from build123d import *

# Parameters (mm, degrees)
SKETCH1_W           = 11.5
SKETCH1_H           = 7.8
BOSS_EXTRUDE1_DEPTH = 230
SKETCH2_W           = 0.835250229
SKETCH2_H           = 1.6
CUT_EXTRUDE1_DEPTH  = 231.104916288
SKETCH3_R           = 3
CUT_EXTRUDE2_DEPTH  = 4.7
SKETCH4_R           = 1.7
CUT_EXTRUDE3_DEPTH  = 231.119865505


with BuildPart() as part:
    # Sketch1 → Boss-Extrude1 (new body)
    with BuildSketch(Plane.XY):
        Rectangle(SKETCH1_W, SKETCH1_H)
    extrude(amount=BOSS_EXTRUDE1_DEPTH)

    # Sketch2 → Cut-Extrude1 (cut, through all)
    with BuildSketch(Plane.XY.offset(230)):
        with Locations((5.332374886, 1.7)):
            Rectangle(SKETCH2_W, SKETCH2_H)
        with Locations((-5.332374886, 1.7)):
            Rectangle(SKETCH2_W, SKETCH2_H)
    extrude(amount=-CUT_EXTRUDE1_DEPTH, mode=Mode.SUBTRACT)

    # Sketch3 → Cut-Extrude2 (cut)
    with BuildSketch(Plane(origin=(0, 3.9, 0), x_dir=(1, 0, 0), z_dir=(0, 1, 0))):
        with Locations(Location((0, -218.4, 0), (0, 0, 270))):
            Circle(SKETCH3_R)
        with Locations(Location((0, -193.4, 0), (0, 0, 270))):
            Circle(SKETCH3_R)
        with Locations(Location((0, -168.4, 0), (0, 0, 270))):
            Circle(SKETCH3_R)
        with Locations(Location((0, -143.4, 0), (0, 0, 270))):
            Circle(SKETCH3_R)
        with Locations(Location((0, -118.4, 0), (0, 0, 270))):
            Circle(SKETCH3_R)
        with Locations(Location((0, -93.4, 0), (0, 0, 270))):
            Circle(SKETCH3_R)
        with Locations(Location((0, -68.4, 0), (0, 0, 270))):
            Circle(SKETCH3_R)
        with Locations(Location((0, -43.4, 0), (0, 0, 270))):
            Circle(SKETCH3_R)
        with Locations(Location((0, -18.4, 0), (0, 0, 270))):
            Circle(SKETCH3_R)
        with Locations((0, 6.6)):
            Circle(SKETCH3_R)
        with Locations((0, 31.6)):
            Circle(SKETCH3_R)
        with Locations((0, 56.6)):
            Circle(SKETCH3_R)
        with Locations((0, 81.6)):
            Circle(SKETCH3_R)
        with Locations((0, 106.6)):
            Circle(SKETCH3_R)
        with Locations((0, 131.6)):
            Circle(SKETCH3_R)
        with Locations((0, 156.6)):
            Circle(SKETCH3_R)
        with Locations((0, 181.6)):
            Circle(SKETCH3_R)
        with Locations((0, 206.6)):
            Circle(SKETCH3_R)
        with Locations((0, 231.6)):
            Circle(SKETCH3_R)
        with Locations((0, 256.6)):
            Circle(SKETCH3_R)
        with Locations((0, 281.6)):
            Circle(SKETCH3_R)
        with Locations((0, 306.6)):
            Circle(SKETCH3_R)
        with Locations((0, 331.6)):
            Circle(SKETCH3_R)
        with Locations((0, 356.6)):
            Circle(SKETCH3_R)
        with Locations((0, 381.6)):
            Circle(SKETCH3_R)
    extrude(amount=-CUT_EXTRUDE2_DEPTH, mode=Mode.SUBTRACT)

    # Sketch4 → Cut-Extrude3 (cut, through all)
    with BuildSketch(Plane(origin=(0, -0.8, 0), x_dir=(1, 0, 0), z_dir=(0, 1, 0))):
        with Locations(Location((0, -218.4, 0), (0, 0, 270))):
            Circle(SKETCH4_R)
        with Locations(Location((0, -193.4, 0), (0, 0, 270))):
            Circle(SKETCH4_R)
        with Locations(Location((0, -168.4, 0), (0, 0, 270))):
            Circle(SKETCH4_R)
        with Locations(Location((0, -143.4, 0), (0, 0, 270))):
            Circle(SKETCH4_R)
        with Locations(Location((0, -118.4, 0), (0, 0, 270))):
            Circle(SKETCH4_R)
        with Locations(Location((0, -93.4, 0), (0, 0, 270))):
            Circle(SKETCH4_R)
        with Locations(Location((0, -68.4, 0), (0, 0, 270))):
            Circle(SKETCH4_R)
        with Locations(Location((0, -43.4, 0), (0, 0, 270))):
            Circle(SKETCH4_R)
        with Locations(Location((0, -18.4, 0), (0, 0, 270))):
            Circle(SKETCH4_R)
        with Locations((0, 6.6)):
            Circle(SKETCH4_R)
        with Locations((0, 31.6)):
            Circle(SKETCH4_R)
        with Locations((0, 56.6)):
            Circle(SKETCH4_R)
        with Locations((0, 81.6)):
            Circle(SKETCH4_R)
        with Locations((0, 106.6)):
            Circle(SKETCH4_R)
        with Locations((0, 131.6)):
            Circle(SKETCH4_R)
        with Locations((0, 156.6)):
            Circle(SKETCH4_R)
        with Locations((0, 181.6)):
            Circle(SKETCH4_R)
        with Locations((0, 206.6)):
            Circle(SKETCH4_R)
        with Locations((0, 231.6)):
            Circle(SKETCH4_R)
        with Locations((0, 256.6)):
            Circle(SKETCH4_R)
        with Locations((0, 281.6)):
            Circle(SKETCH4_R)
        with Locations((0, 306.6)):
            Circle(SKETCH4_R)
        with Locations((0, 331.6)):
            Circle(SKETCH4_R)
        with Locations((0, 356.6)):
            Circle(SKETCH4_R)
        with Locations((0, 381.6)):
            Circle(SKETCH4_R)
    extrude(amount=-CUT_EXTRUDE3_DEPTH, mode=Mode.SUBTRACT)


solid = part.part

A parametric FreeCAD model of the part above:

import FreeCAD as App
import Part
import Sketcher

doc = App.newDocument("Part")
body = doc.addObject("PartDesign::Body", "Body")

# Sketch on XY plane
sketch1 = doc.addObject("Sketcher::SketchObject", "Sketch")
body.addObject(sketch1)
sketch1.AttachmentSupport = (doc.XY_Plane, [""])
sketch1.MapMode = "FlatFace"
sketch1.addGeometry(Part.LineSegment(App.Vector(-5.75, 3.9, 0), App.Vector(-5.75, -3.9, 0)), False)
sketch1.addGeometry(Part.LineSegment(App.Vector(-5.75, -3.9, 0), App.Vector(5.75, -3.9, 0)), False)
sketch1.addGeometry(Part.LineSegment(App.Vector(5.75, -3.9, 0), App.Vector(5.75, 3.9, 0)), False)
sketch1.addGeometry(Part.LineSegment(App.Vector(5.75, 3.9, 0), App.Vector(-5.75, 3.9, 0)), False)
sketch1.addConstraint(Sketcher.Constraint("Coincident", 0, 2, 1, 1))
sketch1.addConstraint(Sketcher.Constraint("Coincident", 1, 2, 2, 1))
sketch1.addConstraint(Sketcher.Constraint("Coincident", 2, 2, 3, 1))
sketch1.addConstraint(Sketcher.Constraint("Coincident", 3, 2, 0, 1))
sketch1.addConstraint(Sketcher.Constraint("Vertical", 0))
sketch1.addConstraint(Sketcher.Constraint("Horizontal", 1))
sketch1.addConstraint(Sketcher.Constraint("Vertical", 2))
sketch1.addConstraint(Sketcher.Constraint("Horizontal", 3))
sketch1.addConstraint(Sketcher.Constraint("Symmetric", 0, 2, 2, 2, -1, 1))
sketch1.addConstraint(Sketcher.Constraint("DistanceX", 1, 1, 1, 2, 11.5))
sketch1.addConstraint(Sketcher.Constraint("DistanceY", 0, 2, 0, 1, 7.8))
pad1 = doc.addObject("PartDesign::Pad", "Pad")
body.addObject(pad1)
pad1.Profile = sketch1
pad1.Length = 230

# Sketch on XY plane
sketch2 = doc.addObject("Sketcher::SketchObject", "Sketch001")
body.addObject(sketch2)
sketch2.AttachmentSupport = (doc.XY_Plane, [""])
sketch2.MapMode = "FlatFace"
sketch2.AttachmentOffset = App.Placement(App.Vector(0, 0, 230), App.Rotation())
sketch2.addGeometry(Part.LineSegment(App.Vector(4.91475, 2.5, 0), App.Vector(4.91475, 0.9, 0)), False)
sketch2.addGeometry(Part.LineSegment(App.Vector(4.91475, 0.9, 0), App.Vector(5.75, 0.9, 0)), False)
sketch2.addGeometry(Part.LineSegment(App.Vector(5.75, 0.9, 0), App.Vector(5.75, 2.5, 0)), False)
sketch2.addGeometry(Part.LineSegment(App.Vector(5.75, 2.5, 0), App.Vector(4.91475, 2.5, 0)), False)
sketch2.addGeometry(Part.LineSegment(App.Vector(-5.75, 2.5, 0), App.Vector(-5.75, 0.9, 0)), False)
sketch2.addGeometry(Part.LineSegment(App.Vector(-5.75, 0.9, 0), App.Vector(-4.91475, 0.9, 0)), False)
sketch2.addGeometry(Part.LineSegment(App.Vector(-4.91475, 0.9, 0), App.Vector(-4.91475, 2.5, 0)), False)
sketch2.addGeometry(Part.LineSegment(App.Vector(-4.91475, 2.5, 0), App.Vector(-5.75, 2.5, 0)), False)
sketch2.addConstraint(Sketcher.Constraint("Coincident", 0, 2, 1, 1))
sketch2.addConstraint(Sketcher.Constraint("Coincident", 1, 2, 2, 1))
sketch2.addConstraint(Sketcher.Constraint("Coincident", 2, 2, 3, 1))
sketch2.addConstraint(Sketcher.Constraint("Coincident", 3, 2, 0, 1))
sketch2.addConstraint(Sketcher.Constraint("Coincident", 4, 2, 5, 1))
sketch2.addConstraint(Sketcher.Constraint("Coincident", 5, 2, 6, 1))
sketch2.addConstraint(Sketcher.Constraint("Coincident", 6, 2, 7, 1))
sketch2.addConstraint(Sketcher.Constraint("Coincident", 7, 2, 4, 1))
sketch2.addConstraint(Sketcher.Constraint("Vertical", 0))
sketch2.addConstraint(Sketcher.Constraint("Horizontal", 1))
sketch2.addConstraint(Sketcher.Constraint("Vertical", 2))
sketch2.addConstraint(Sketcher.Constraint("Horizontal", 3))
sketch2.addConstraint(Sketcher.Constraint("Vertical", 4))
sketch2.addConstraint(Sketcher.Constraint("Horizontal", 5))
sketch2.addConstraint(Sketcher.Constraint("Vertical", 6))
sketch2.addConstraint(Sketcher.Constraint("Horizontal", 7))
sketch2.addConstraint(Sketcher.Constraint("Symmetric", 1, 2, 4, 2, -2))
sketch2.addConstraint(Sketcher.Constraint("Symmetric", 3, 2, 6, 2, -2))
sketch2.addConstraint(Sketcher.Constraint("DistanceY", 0, 2, 0, 1, 1.6))
sketch2.addConstraint(Sketcher.Constraint("DistanceY", -1, 1, 0, 2, 0.9))
sketch2.addConstraint(Sketcher.Constraint("DistanceX", 4, 2, 1, 2, 11.5))
sketch2.addConstraint(Sketcher.Constraint("DistanceX", 1, 1, 1, 2, 0.83525))
pocket1 = doc.addObject("PartDesign::Pocket", "Pocket")
body.addObject(pocket1)
pocket1.Profile = sketch2
pocket1.Type = "ThroughAll"

# Sketch on XZ plane
sketch3 = doc.addObject("Sketcher::SketchObject", "Sketch002")
body.addObject(sketch3)
sketch3.AttachmentSupport = (doc.XZ_Plane, [""])
sketch3.MapMode = "FlatFace"
sketch3.AttachmentOffset = App.Placement(App.Vector(0, 0, -3.9), App.Rotation())
sketch3.addGeometry(Part.Circle(App.Vector(0, 218.4, 0), App.Vector(0, 0, 1), 3), False)
sketch3.addGeometry(Part.Circle(App.Vector(0, 193.4, 0), App.Vector(0, 0, 1), 3), False)
sketch3.addGeometry(Part.Circle(App.Vector(0, 168.4, 0), App.Vector(0, 0, 1), 3), False)
sketch3.addGeometry(Part.Circle(App.Vector(0, 143.4, 0), App.Vector(0, 0, 1), 3), False)
sketch3.addGeometry(Part.Circle(App.Vector(0, 118.4, 0), App.Vector(0, 0, 1), 3), False)
sketch3.addGeometry(Part.Circle(App.Vector(0, 93.4, 0), App.Vector(0, 0, 1), 3), False)
sketch3.addGeometry(Part.Circle(App.Vector(0, 68.4, 0), App.Vector(0, 0, 1), 3), False)
sketch3.addGeometry(Part.Circle(App.Vector(0, 43.4, 0), App.Vector(0, 0, 1), 3), False)
sketch3.addGeometry(Part.Circle(App.Vector(0, 18.4, 0), App.Vector(0, 0, 1), 3), False)
sketch3.addGeometry(Part.Circle(App.Vector(0, -6.6, 0), App.Vector(0, 0, 1), 3), False)
sketch3.addGeometry(Part.Circle(App.Vector(0, -31.6, 0), App.Vector(0, 0, 1), 3), False)
sketch3.addGeometry(Part.Circle(App.Vector(0, -56.6, 0), App.Vector(0, 0, 1), 3), False)
sketch3.addGeometry(Part.Circle(App.Vector(0, -81.6, 0), App.Vector(0, 0, 1), 3), False)
sketch3.addGeometry(Part.Circle(App.Vector(0, -106.6, 0), App.Vector(0, 0, 1), 3), False)
sketch3.addGeometry(Part.Circle(App.Vector(0, -131.6, 0), App.Vector(0, 0, 1), 3), False)
sketch3.addGeometry(Part.Circle(App.Vector(0, -156.6, 0), App.Vector(0, 0, 1), 3), False)
sketch3.addGeometry(Part.Circle(App.Vector(0, -181.6, 0), App.Vector(0, 0, 1), 3), False)
sketch3.addGeometry(Part.Circle(App.Vector(0, -206.6, 0), App.Vector(0, 0, 1), 3), False)
sketch3.addGeometry(Part.Circle(App.Vector(0, -231.6, 0), App.Vector(0, 0, 1), 3), False)
sketch3.addGeometry(Part.Circle(App.Vector(0, -256.6, 0), App.Vector(0, 0, 1), 3), False)
sketch3.addGeometry(Part.Circle(App.Vector(0, -281.6, 0), App.Vector(0, 0, 1), 3), False)
sketch3.addGeometry(Part.Circle(App.Vector(0, -306.6, 0), App.Vector(0, 0, 1), 3), False)
sketch3.addGeometry(Part.Circle(App.Vector(0, -331.6, 0), App.Vector(0, 0, 1), 3), False)
sketch3.addGeometry(Part.Circle(App.Vector(0, -356.6, 0), App.Vector(0, 0, 1), 3), False)
sketch3.addGeometry(Part.Circle(App.Vector(0, -381.6, 0), App.Vector(0, 0, 1), 3), False)
sketch3.addConstraint(Sketcher.Constraint("Equal", 0, 1))
sketch3.addConstraint(Sketcher.Constraint("Equal", 1, 2))
sketch3.addConstraint(Sketcher.Constraint("Equal", 2, 3))
sketch3.addConstraint(Sketcher.Constraint("Equal", 3, 4))
sketch3.addConstraint(Sketcher.Constraint("Equal", 4, 5))
sketch3.addConstraint(Sketcher.Constraint("Equal", 5, 6))
sketch3.addConstraint(Sketcher.Constraint("Equal", 6, 7))
sketch3.addConstraint(Sketcher.Constraint("Equal", 7, 8))
sketch3.addConstraint(Sketcher.Constraint("Equal", 8, 9))
sketch3.addConstraint(Sketcher.Constraint("Equal", 9, 10))
sketch3.addConstraint(Sketcher.Constraint("Equal", 10, 11))
sketch3.addConstraint(Sketcher.Constraint("Equal", 11, 12))
sketch3.addConstraint(Sketcher.Constraint("Equal", 12, 13))
sketch3.addConstraint(Sketcher.Constraint("Equal", 13, 14))
sketch3.addConstraint(Sketcher.Constraint("Equal", 14, 15))
sketch3.addConstraint(Sketcher.Constraint("Equal", 15, 16))
sketch3.addConstraint(Sketcher.Constraint("Equal", 16, 17))
sketch3.addConstraint(Sketcher.Constraint("Equal", 17, 18))
sketch3.addConstraint(Sketcher.Constraint("Equal", 18, 19))
sketch3.addConstraint(Sketcher.Constraint("Equal", 19, 20))
sketch3.addConstraint(Sketcher.Constraint("Equal", 20, 21))
sketch3.addConstraint(Sketcher.Constraint("Equal", 21, 22))
sketch3.addConstraint(Sketcher.Constraint("Equal", 22, 23))
sketch3.addConstraint(Sketcher.Constraint("Equal", 23, 24))
sketch3.addConstraint(Sketcher.Constraint("PointOnObject", 0, 3, -2))
sketch3.addConstraint(Sketcher.Constraint("PointOnObject", 1, 3, -2))
sketch3.addConstraint(Sketcher.Constraint("PointOnObject", 2, 3, -2))
sketch3.addConstraint(Sketcher.Constraint("PointOnObject", 3, 3, -2))
sketch3.addConstraint(Sketcher.Constraint("PointOnObject", 4, 3, -2))
sketch3.addConstraint(Sketcher.Constraint("PointOnObject", 5, 3, -2))
sketch3.addConstraint(Sketcher.Constraint("PointOnObject", 6, 3, -2))
sketch3.addConstraint(Sketcher.Constraint("PointOnObject", 7, 3, -2))
sketch3.addConstraint(Sketcher.Constraint("PointOnObject", 8, 3, -2))
sketch3.addConstraint(Sketcher.Constraint("PointOnObject", 9, 3, -2))
sketch3.addConstraint(Sketcher.Constraint("PointOnObject", 10, 3, -2))
sketch3.addConstraint(Sketcher.Constraint("PointOnObject", 11, 3, -2))
sketch3.addConstraint(Sketcher.Constraint("PointOnObject", 12, 3, -2))
sketch3.addConstraint(Sketcher.Constraint("PointOnObject", 13, 3, -2))
sketch3.addConstraint(Sketcher.Constraint("PointOnObject", 14, 3, -2))
sketch3.addConstraint(Sketcher.Constraint("PointOnObject", 15, 3, -2))
sketch3.addConstraint(Sketcher.Constraint("PointOnObject", 16, 3, -2))
sketch3.addConstraint(Sketcher.Constraint("PointOnObject", 17, 3, -2))
sketch3.addConstraint(Sketcher.Constraint("PointOnObject", 18, 3, -2))
sketch3.addConstraint(Sketcher.Constraint("PointOnObject", 19, 3, -2))
sketch3.addConstraint(Sketcher.Constraint("PointOnObject", 20, 3, -2))
sketch3.addConstraint(Sketcher.Constraint("PointOnObject", 21, 3, -2))
sketch3.addConstraint(Sketcher.Constraint("PointOnObject", 22, 3, -2))
sketch3.addConstraint(Sketcher.Constraint("PointOnObject", 23, 3, -2))
sketch3.addConstraint(Sketcher.Constraint("PointOnObject", 24, 3, -2))
sketch3.addConstraint(Sketcher.Constraint("Diameter", 0, 6.0))
sketch3.addConstraint(Sketcher.Constraint("DistanceY", 1, 3, 0, 3, 25.0))
sketch3.addConstraint(Sketcher.Constraint("DistanceY", 2, 3, 1, 3, 25.0))
sketch3.addConstraint(Sketcher.Constraint("DistanceY", 3, 3, 2, 3, 25.0))
sketch3.addConstraint(Sketcher.Constraint("DistanceY", 4, 3, 3, 3, 25.0))
sketch3.addConstraint(Sketcher.Constraint("DistanceY", 5, 3, 4, 3, 25.0))
sketch3.addConstraint(Sketcher.Constraint("DistanceY", 6, 3, 5, 3, 25.0))
sketch3.addConstraint(Sketcher.Constraint("DistanceY", 7, 3, 6, 3, 25.0))
sketch3.addConstraint(Sketcher.Constraint("DistanceY", 8, 3, 7, 3, 25.0))
sketch3.addConstraint(Sketcher.Constraint("DistanceY", 9, 3, 8, 3, 25.0))
sketch3.addConstraint(Sketcher.Constraint("DistanceY", 10, 3, 9, 3, 25.0))
sketch3.addConstraint(Sketcher.Constraint("DistanceY", 11, 3, 10, 3, 25.0))
sketch3.addConstraint(Sketcher.Constraint("DistanceY", 12, 3, 11, 3, 25.0))
sketch3.addConstraint(Sketcher.Constraint("DistanceY", 13, 3, 12, 3, 25.0))
sketch3.addConstraint(Sketcher.Constraint("DistanceY", 14, 3, 13, 3, 25.0))
sketch3.addConstraint(Sketcher.Constraint("DistanceY", 15, 3, 14, 3, 25.0))
sketch3.addConstraint(Sketcher.Constraint("DistanceY", 16, 3, 15, 3, 25.0))
sketch3.addConstraint(Sketcher.Constraint("DistanceY", 17, 3, 16, 3, 25.0))
sketch3.addConstraint(Sketcher.Constraint("DistanceY", 18, 3, 17, 3, 25.0))
sketch3.addConstraint(Sketcher.Constraint("DistanceY", 19, 3, 18, 3, 25.0))
sketch3.addConstraint(Sketcher.Constraint("DistanceY", 20, 3, 19, 3, 25.0))
sketch3.addConstraint(Sketcher.Constraint("DistanceY", 21, 3, 20, 3, 25.0))
sketch3.addConstraint(Sketcher.Constraint("DistanceY", 22, 3, 21, 3, 25.0))
sketch3.addConstraint(Sketcher.Constraint("DistanceY", 23, 3, 22, 3, 25.0))
sketch3.addConstraint(Sketcher.Constraint("DistanceY", 24, 3, 23, 3, 25.0))
sketch3.addConstraint(Sketcher.Constraint("DistanceY", -1, 1, 0, 3, 218.4))
pocket2 = doc.addObject("PartDesign::Pocket", "Pocket001")
body.addObject(pocket2)
pocket2.Profile = sketch3
pocket2.Length = 4.7
pocket2.Reversed = True

# Sketch on XZ plane
sketch4 = doc.addObject("Sketcher::SketchObject", "Sketch003")
body.addObject(sketch4)
sketch4.AttachmentSupport = (doc.XZ_Plane, [""])
sketch4.MapMode = "FlatFace"
sketch4.AttachmentOffset = App.Placement(App.Vector(0, 0, 0.8), App.Rotation())
sketch4.addGeometry(Part.Circle(App.Vector(0, 218.4, 0), App.Vector(0, 0, 1), 1.7), False)
sketch4.addGeometry(Part.Circle(App.Vector(0, 193.4, 0), App.Vector(0, 0, 1), 1.7), False)
sketch4.addGeometry(Part.Circle(App.Vector(0, 168.4, 0), App.Vector(0, 0, 1), 1.7), False)
sketch4.addGeometry(Part.Circle(App.Vector(0, 143.4, 0), App.Vector(0, 0, 1), 1.7), False)
sketch4.addGeometry(Part.Circle(App.Vector(0, 118.4, 0), App.Vector(0, 0, 1), 1.7), False)
sketch4.addGeometry(Part.Circle(App.Vector(0, 93.4, 0), App.Vector(0, 0, 1), 1.7), False)
sketch4.addGeometry(Part.Circle(App.Vector(0, 68.4, 0), App.Vector(0, 0, 1), 1.7), False)
sketch4.addGeometry(Part.Circle(App.Vector(0, 43.4, 0), App.Vector(0, 0, 1), 1.7), False)
sketch4.addGeometry(Part.Circle(App.Vector(0, 18.4, 0), App.Vector(0, 0, 1), 1.7), False)
sketch4.addGeometry(Part.Circle(App.Vector(0, -6.6, 0), App.Vector(0, 0, 1), 1.7), False)
sketch4.addGeometry(Part.Circle(App.Vector(0, -31.6, 0), App.Vector(0, 0, 1), 1.7), False)
sketch4.addGeometry(Part.Circle(App.Vector(0, -56.6, 0), App.Vector(0, 0, 1), 1.7), False)
sketch4.addGeometry(Part.Circle(App.Vector(0, -81.6, 0), App.Vector(0, 0, 1), 1.7), False)
sketch4.addGeometry(Part.Circle(App.Vector(0, -106.6, 0), App.Vector(0, 0, 1), 1.7), False)
sketch4.addGeometry(Part.Circle(App.Vector(0, -131.6, 0), App.Vector(0, 0, 1), 1.7), False)
sketch4.addGeometry(Part.Circle(App.Vector(0, -156.6, 0), App.Vector(0, 0, 1), 1.7), False)
sketch4.addGeometry(Part.Circle(App.Vector(0, -181.6, 0), App.Vector(0, 0, 1), 1.7), False)
sketch4.addGeometry(Part.Circle(App.Vector(0, -206.6, 0), App.Vector(0, 0, 1), 1.7), False)
sketch4.addGeometry(Part.Circle(App.Vector(0, -231.6, 0), App.Vector(0, 0, 1), 1.7), False)
sketch4.addGeometry(Part.Circle(App.Vector(0, -256.6, 0), App.Vector(0, 0, 1), 1.7), False)
sketch4.addGeometry(Part.Circle(App.Vector(0, -281.6, 0), App.Vector(0, 0, 1), 1.7), False)
sketch4.addGeometry(Part.Circle(App.Vector(0, -306.6, 0), App.Vector(0, 0, 1), 1.7), False)
sketch4.addGeometry(Part.Circle(App.Vector(0, -331.6, 0), App.Vector(0, 0, 1), 1.7), False)
sketch4.addGeometry(Part.Circle(App.Vector(0, -356.6, 0), App.Vector(0, 0, 1), 1.7), False)
sketch4.addGeometry(Part.Circle(App.Vector(0, -381.6, 0), App.Vector(0, 0, 1), 1.7), False)
sketch4.addConstraint(Sketcher.Constraint("Equal", 0, 1))
sketch4.addConstraint(Sketcher.Constraint("Equal", 1, 2))
sketch4.addConstraint(Sketcher.Constraint("Equal", 2, 3))
sketch4.addConstraint(Sketcher.Constraint("Equal", 3, 4))
sketch4.addConstraint(Sketcher.Constraint("Equal", 4, 5))
sketch4.addConstraint(Sketcher.Constraint("Equal", 5, 6))
sketch4.addConstraint(Sketcher.Constraint("Equal", 6, 7))
sketch4.addConstraint(Sketcher.Constraint("Equal", 7, 8))
sketch4.addConstraint(Sketcher.Constraint("Equal", 8, 9))
sketch4.addConstraint(Sketcher.Constraint("Equal", 9, 10))
sketch4.addConstraint(Sketcher.Constraint("Equal", 10, 11))
sketch4.addConstraint(Sketcher.Constraint("Equal", 11, 12))
sketch4.addConstraint(Sketcher.Constraint("Equal", 12, 13))
sketch4.addConstraint(Sketcher.Constraint("Equal", 13, 14))
sketch4.addConstraint(Sketcher.Constraint("Equal", 14, 15))
sketch4.addConstraint(Sketcher.Constraint("Equal", 15, 16))
sketch4.addConstraint(Sketcher.Constraint("Equal", 16, 17))
sketch4.addConstraint(Sketcher.Constraint("Equal", 17, 18))
sketch4.addConstraint(Sketcher.Constraint("Equal", 18, 19))
sketch4.addConstraint(Sketcher.Constraint("Equal", 19, 20))
sketch4.addConstraint(Sketcher.Constraint("Equal", 20, 21))
sketch4.addConstraint(Sketcher.Constraint("Equal", 21, 22))
sketch4.addConstraint(Sketcher.Constraint("Equal", 22, 23))
sketch4.addConstraint(Sketcher.Constraint("Equal", 23, 24))
sketch4.addConstraint(Sketcher.Constraint("PointOnObject", 0, 3, -2))
sketch4.addConstraint(Sketcher.Constraint("PointOnObject", 1, 3, -2))
sketch4.addConstraint(Sketcher.Constraint("PointOnObject", 2, 3, -2))
sketch4.addConstraint(Sketcher.Constraint("PointOnObject", 3, 3, -2))
sketch4.addConstraint(Sketcher.Constraint("PointOnObject", 4, 3, -2))
sketch4.addConstraint(Sketcher.Constraint("PointOnObject", 5, 3, -2))
sketch4.addConstraint(Sketcher.Constraint("PointOnObject", 6, 3, -2))
sketch4.addConstraint(Sketcher.Constraint("PointOnObject", 7, 3, -2))
sketch4.addConstraint(Sketcher.Constraint("PointOnObject", 8, 3, -2))
sketch4.addConstraint(Sketcher.Constraint("PointOnObject", 9, 3, -2))
sketch4.addConstraint(Sketcher.Constraint("PointOnObject", 10, 3, -2))
sketch4.addConstraint(Sketcher.Constraint("PointOnObject", 11, 3, -2))
sketch4.addConstraint(Sketcher.Constraint("PointOnObject", 12, 3, -2))
sketch4.addConstraint(Sketcher.Constraint("PointOnObject", 13, 3, -2))
sketch4.addConstraint(Sketcher.Constraint("PointOnObject", 14, 3, -2))
sketch4.addConstraint(Sketcher.Constraint("PointOnObject", 15, 3, -2))
sketch4.addConstraint(Sketcher.Constraint("PointOnObject", 16, 3, -2))
sketch4.addConstraint(Sketcher.Constraint("PointOnObject", 17, 3, -2))
sketch4.addConstraint(Sketcher.Constraint("PointOnObject", 18, 3, -2))
sketch4.addConstraint(Sketcher.Constraint("PointOnObject", 19, 3, -2))
sketch4.addConstraint(Sketcher.Constraint("PointOnObject", 20, 3, -2))
sketch4.addConstraint(Sketcher.Constraint("PointOnObject", 21, 3, -2))
sketch4.addConstraint(Sketcher.Constraint("PointOnObject", 22, 3, -2))
sketch4.addConstraint(Sketcher.Constraint("PointOnObject", 23, 3, -2))
sketch4.addConstraint(Sketcher.Constraint("PointOnObject", 24, 3, -2))
sketch4.addConstraint(Sketcher.Constraint("Diameter", 0, 3.4))
sketch4.addConstraint(Sketcher.Constraint("DistanceY", 1, 3, 0, 3, 25.0))
sketch4.addConstraint(Sketcher.Constraint("DistanceY", 2, 3, 1, 3, 25.0))
sketch4.addConstraint(Sketcher.Constraint("DistanceY", 3, 3, 2, 3, 25.0))
sketch4.addConstraint(Sketcher.Constraint("DistanceY", 4, 3, 3, 3, 25.0))
sketch4.addConstraint(Sketcher.Constraint("DistanceY", 5, 3, 4, 3, 25.0))
sketch4.addConstraint(Sketcher.Constraint("DistanceY", 6, 3, 5, 3, 25.0))
sketch4.addConstraint(Sketcher.Constraint("DistanceY", 7, 3, 6, 3, 25.0))
sketch4.addConstraint(Sketcher.Constraint("DistanceY", 8, 3, 7, 3, 25.0))
sketch4.addConstraint(Sketcher.Constraint("DistanceY", 9, 3, 8, 3, 25.0))
sketch4.addConstraint(Sketcher.Constraint("DistanceY", 10, 3, 9, 3, 25.0))
sketch4.addConstraint(Sketcher.Constraint("DistanceY", 11, 3, 10, 3, 25.0))
sketch4.addConstraint(Sketcher.Constraint("DistanceY", 12, 3, 11, 3, 25.0))
sketch4.addConstraint(Sketcher.Constraint("DistanceY", 13, 3, 12, 3, 25.0))
sketch4.addConstraint(Sketcher.Constraint("DistanceY", 14, 3, 13, 3, 25.0))
sketch4.addConstraint(Sketcher.Constraint("DistanceY", 15, 3, 14, 3, 25.0))
sketch4.addConstraint(Sketcher.Constraint("DistanceY", 16, 3, 15, 3, 25.0))
sketch4.addConstraint(Sketcher.Constraint("DistanceY", 17, 3, 16, 3, 25.0))
sketch4.addConstraint(Sketcher.Constraint("DistanceY", 18, 3, 17, 3, 25.0))
sketch4.addConstraint(Sketcher.Constraint("DistanceY", 19, 3, 18, 3, 25.0))
sketch4.addConstraint(Sketcher.Constraint("DistanceY", 20, 3, 19, 3, 25.0))
sketch4.addConstraint(Sketcher.Constraint("DistanceY", 21, 3, 20, 3, 25.0))
sketch4.addConstraint(Sketcher.Constraint("DistanceY", 22, 3, 21, 3, 25.0))
sketch4.addConstraint(Sketcher.Constraint("DistanceY", 23, 3, 22, 3, 25.0))
sketch4.addConstraint(Sketcher.Constraint("DistanceY", 24, 3, 23, 3, 25.0))
sketch4.addConstraint(Sketcher.Constraint("DistanceY", -1, 1, 0, 3, 218.4))
pocket3 = doc.addObject("PartDesign::Pocket", "Pocket002")
body.addObject(pocket3)
pocket3.Profile = sketch4
pocket3.Type = "ThroughAll"
pocket3.Reversed = True

doc.recompute()
